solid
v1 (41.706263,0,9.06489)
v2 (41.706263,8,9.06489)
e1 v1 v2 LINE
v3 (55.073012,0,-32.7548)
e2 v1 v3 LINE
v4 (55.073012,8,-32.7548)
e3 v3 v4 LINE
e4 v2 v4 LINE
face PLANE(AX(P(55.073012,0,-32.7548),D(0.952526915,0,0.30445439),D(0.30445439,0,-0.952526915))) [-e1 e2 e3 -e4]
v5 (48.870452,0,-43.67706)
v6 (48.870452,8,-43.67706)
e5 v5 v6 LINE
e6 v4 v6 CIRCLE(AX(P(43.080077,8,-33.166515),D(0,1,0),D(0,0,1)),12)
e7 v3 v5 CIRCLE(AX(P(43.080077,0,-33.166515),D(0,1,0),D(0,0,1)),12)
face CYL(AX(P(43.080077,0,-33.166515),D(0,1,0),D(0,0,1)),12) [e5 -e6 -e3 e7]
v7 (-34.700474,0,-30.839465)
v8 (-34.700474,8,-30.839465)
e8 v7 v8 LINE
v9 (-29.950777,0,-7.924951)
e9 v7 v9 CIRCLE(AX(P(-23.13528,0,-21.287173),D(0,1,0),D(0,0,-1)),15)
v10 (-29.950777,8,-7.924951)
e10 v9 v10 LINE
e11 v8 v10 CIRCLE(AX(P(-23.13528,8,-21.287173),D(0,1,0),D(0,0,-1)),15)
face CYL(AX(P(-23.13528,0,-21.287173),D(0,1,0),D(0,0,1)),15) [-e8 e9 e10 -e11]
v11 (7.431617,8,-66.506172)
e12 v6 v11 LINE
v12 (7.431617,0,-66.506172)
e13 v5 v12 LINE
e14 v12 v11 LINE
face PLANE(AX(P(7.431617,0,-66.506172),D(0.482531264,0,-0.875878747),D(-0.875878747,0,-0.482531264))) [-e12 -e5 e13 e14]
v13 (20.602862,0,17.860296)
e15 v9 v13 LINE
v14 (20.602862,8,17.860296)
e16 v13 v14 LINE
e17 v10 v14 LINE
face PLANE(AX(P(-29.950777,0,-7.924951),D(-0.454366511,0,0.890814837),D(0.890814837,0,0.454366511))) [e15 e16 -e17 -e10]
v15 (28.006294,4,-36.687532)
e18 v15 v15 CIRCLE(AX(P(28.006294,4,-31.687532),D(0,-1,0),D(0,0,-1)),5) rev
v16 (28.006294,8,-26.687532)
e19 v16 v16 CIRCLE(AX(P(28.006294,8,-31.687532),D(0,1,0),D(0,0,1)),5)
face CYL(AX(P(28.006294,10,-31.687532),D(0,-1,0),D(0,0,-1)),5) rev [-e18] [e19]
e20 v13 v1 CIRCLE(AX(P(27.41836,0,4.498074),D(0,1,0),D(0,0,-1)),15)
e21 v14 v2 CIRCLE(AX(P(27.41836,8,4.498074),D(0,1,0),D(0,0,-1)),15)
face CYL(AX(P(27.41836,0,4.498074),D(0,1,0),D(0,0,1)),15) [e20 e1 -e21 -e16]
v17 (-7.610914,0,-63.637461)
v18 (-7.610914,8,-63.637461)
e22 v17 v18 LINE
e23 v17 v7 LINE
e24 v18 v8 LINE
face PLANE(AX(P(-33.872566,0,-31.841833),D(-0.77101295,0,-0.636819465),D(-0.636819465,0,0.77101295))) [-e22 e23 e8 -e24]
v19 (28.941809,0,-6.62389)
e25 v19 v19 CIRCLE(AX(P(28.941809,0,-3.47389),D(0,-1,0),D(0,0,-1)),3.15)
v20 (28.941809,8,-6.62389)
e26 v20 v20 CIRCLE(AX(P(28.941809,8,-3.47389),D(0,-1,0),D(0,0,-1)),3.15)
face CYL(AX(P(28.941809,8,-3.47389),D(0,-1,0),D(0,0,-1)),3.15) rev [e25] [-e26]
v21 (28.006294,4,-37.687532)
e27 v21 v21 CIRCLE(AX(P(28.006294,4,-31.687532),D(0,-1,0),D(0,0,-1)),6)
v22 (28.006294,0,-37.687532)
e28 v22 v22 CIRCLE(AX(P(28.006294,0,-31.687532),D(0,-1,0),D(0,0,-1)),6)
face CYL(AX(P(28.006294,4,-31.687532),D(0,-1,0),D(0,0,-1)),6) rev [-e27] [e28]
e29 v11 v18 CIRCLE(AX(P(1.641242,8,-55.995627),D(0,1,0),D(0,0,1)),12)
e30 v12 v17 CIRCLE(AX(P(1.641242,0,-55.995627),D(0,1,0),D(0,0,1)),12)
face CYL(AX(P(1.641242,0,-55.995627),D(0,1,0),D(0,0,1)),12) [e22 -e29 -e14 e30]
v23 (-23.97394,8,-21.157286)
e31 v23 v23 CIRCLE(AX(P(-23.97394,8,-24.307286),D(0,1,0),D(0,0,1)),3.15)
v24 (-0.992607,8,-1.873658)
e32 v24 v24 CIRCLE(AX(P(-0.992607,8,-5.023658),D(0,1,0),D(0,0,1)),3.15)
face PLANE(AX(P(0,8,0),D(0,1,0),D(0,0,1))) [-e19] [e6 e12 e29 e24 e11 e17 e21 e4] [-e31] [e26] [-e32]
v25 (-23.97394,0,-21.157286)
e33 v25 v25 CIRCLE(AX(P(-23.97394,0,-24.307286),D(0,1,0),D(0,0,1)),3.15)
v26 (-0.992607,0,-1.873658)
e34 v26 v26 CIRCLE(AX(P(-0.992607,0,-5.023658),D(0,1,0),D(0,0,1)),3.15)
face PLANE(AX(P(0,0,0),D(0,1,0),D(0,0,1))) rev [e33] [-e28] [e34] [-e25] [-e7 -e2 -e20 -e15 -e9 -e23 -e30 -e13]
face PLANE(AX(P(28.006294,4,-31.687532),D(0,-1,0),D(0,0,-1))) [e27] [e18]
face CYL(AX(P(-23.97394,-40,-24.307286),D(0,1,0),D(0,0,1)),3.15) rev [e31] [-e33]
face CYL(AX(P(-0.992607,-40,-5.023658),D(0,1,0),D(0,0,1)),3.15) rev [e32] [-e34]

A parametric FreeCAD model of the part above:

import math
import FreeCAD as App
import Part
import Sketcher

V = App.Vector
Q = App.Units.Quantity


def add_polygon(sketch, points):
    """Adds a closed chain of lines whose ends are joined by coincident constraints."""
    first, n = sketch.GeometryCount, len(points)
    for a, b in zip(points, points[1:] + points[:1]):
        sketch.addGeometry(Part.LineSegment(App.Vector(*a, 0), App.Vector(*b, 0)), False)
    for i in range(n):
        sketch.addConstraint(Sketcher.Constraint("Coincident", first + i, 2, first + (i + 1) % n, 1))

doc = App.newDocument("Part")
body = doc.addObject("PartDesign::Body", "Body")

sketch1 = body.newObject("Sketcher::SketchObject", "Sketch")
sketch1.AttachmentSupport = (doc.getObject("XZ_Plane"), [""])
sketch1.MapMode = "FlatFace"
add_polygon(sketch1, [(-36.064195, -45.05514), (-36.064195, -30.198211), (-26.793691, 0.934399), (5.024212, 12.575444), (57.860021, -4.654046), (63.192702, -49.978778), (25.92829, -75.028423), (-24.456216, -60.508201)])
sketch1.addConstraint([
    Sketcher.Constraint("Vertical", 0),
    Sketcher.Constraint("DistanceY", 0, 1, 0, 2, Q("14.856929 mm")),
    Sketcher.Constraint("DistanceY", -1, 1, 1, 2, Q("0.934399 mm")),
    Sketcher.Constraint("DistanceX", -1, 1, 4, 2, Q("63.192702 mm")),
    Sketcher.Constraint("DistanceY", 6, 2, -1, 1, Q("60.508201 mm")),
    Sketcher.Constraint("Distance", 1, Q("32.48356 mm")),
    Sketcher.Constraint("Distance", 4, Q("45.637362 mm")),
    Sketcher.Constraint("Distance", 6, Q("52.435058 mm")),
    Sketcher.Constraint("Distance", 7, Q("19.327241 mm")),
    Sketcher.Constraint("DistanceY", 0, 2, -1, 1, Q("30.198211 mm")),
    Sketcher.Constraint("DistanceX", 1, 2, -1, 1, Q("26.793691 mm")),
    Sketcher.Constraint("DistanceX", -1, 1, 3, 2, Q("57.860021 mm")),
    Sketcher.Constraint("DistanceX", -1, 1, 5, 2, Q("25.92829 mm")),
    Sketcher.Constraint("DistanceX", 2, 2, 3, 2, Q("52.835809 mm")),
    Sketcher.Constraint("DistanceY", 3, 2, 2, 2, Q("17.22949 mm")),
    Sketcher.Constraint("Distance", 2, Q("33.880567 mm")),
])
pad1 = body.newObject("PartDesign::Pad", "Pad")
pad1.Profile = sketch1
pad1.Length = 8
pad1.Reversed = True

sketch2 = body.newObject("Sketcher::SketchObject", "Sketch001")
sketch2.AttachmentSupport = (doc.getObject("XZ_Plane"), [""])
sketch2.MapMode = "FlatFace"
sketch2.AttachmentOffset = App.Placement(V(0, 0, -8), App.Rotation())
add_polygon(sketch2, [(-23.900801, -101.032848), (-57.901406, -20.736967), (-18.158957, 32.533825), (87.924214, 9.961237), (85.311975, -49.315634)])
add_polygon(sketch2, [(-5.371906, 12.019068), (-40.820624, -23.42965), (-8.197554, -82.927487), (73.057765, -41.083606), (42.940552, 17.400063)])
sketch2.addConstraint([
    Sketcher.Constraint("Perpendicular", 7, 8),
    Sketcher.Constraint("Angle", 5, Q("-135 deg")),
    Sketcher.Constraint("Distance", 9, Q("48.6112 mm")),
    Sketcher.Constraint("DistanceX", 4, 2, -1, 1, Q("23.900801 mm")),
    Sketcher.Constraint("DistanceY", 4, 2, 5, 2, Q("77.603199 mm")),
    Sketcher.Constraint("DistanceX", 5, 2, 3, 2, Q("126.132599 mm")),
    Sketcher.Constraint("DistanceX", 0, 2, 9, 2, Q("52.5295 mm")),
    Sketcher.Constraint("Distance", 6, Q("67.854678 mm")),
    Sketcher.Constraint("Distance", 8, Q("65.782871 mm")),
    Sketcher.Constraint("DistanceY", 4, 2, -1, 1, Q("101.032848 mm")),
    Sketcher.Constraint("DistanceX", 0, 2, 1, 2, Q("39.742449 mm")),
    Sketcher.Constraint("DistanceX", 1, 2, 2, 2, Q("106.083171 mm")),
    Sketcher.Constraint("DistanceY", 2, 2, 1, 2, Q("22.572588 mm")),
    Sketcher.Constraint("DistanceX", 3, 2, 2, 2, Q("2.612239 mm")),
    Sketcher.Constraint("DistanceY", 3, 2, 2, 2, Q("59.276871 mm")),
    Sketcher.Constraint("DistanceY", 4, 2, 0, 2, Q("80.295881 mm")),
    Sketcher.Constraint("DistanceY", 4, 2, 6, 2, Q("18.105361 mm")),
    Sketcher.Constraint("DistanceX", 7, 2, 3, 2, Q("12.25421 mm")),
    Sketcher.Constraint("DistanceY", 3, 2, 7, 2, Q("8.232028 mm")),
    Sketcher.Constraint("Distance", 0, Q("87.197876 mm")),
])
pocket1 = body.newObject("PartDesign::Pocket", "Pocket")
pocket1.Profile = sketch2
pocket1.Length = 18.5
pocket1.Reversed = True

sketch3 = body.newObject("Sketcher::SketchObject", "Sketch002")
sketch3.AttachmentSupport = (doc.getObject("XZ_Plane"), [""])
sketch3.MapMode = "FlatFace"
sketch3.AttachmentOffset = App.Placement(V(0, 0, -8), App.Rotation())
add_polygon(sketch3, [(-8.197554, -82.927487), (-40.820624, -23.42965), (-5.371906, 12.019068), (42.940552, 17.400063), (73.057765, -41.083606)])
add_polygon(sketch3, [(-9.746923, -64.747246), (7.419637, -62.005547), (56.025504, -35.943619), (46.19748, -11.841772), (0, 4.674812), (-32.401642, -23.42965)])
sketch3.addConstraint([
    Sketcher.Constraint("PointOnObject", 8, 2, -2),
    Sketcher.Constraint("Distance", 2, Q("48.6112 mm")),
    Sketcher.Constraint("DistanceY", 10, 2, 5, 2, Q("2.741699 mm")),
    Sketcher.Constraint("DistanceX", 0, 2, 10, 2, Q("31.073701 mm")),
    Sketcher.Constraint("Distance", 0, Q("67.854678 mm")),
    Sketcher.Constraint("Distance", 3, Q("65.782871 mm")),
    Sketcher.Constraint("Distance", 5, Q("17.384122 mm")),
    Sketcher.Constraint("Distance", 7, Q("26.028621 mm")),
    Sketcher.Constraint("Distance", 9, Q("42.892041 mm")),
    Sketcher.Constraint("Distance", 10, Q("47.120909 mm")),
    Sketcher.Constraint("DistanceY", 0, 2, -1, 1, Q("23.42965 mm")),
    Sketcher.Constraint("DistanceY", 6, 2, -1, 1, Q("35.943619 mm")),
    Sketcher.Constraint("DistanceX", -1, 1, 7, 2, Q("46.19748 mm")),
    Sketcher.Constraint("DistanceY", 7, 2, -1, 1, Q("11.841772 mm")),
    Sketcher.Constraint("DistanceY", 9, 2, -1, 1, Q("23.42965 mm")),
    Sketcher.Constraint("DistanceX", 1, 2, 2, 2, Q("48.312459 mm")),
    Sketcher.Constraint("DistanceY", 3, 2, 2, 2, Q("58.483669 mm")),
    Sketcher.Constraint("DistanceX", 0, 2, 3, 2, Q("113.878389 mm")),
    Sketcher.Constraint("DistanceX", 0, 2, 4, 2, Q("32.62307 mm")),
    Sketcher.Constraint("DistanceY", 4, 2, 3, 2, Q("41.843881 mm")),
    Sketcher.Constraint("DistanceY", 4, 2, 5, 2, Q("20.92194 mm")),
    Sketcher.Constraint("DistanceX", 6, 2, 3, 2, Q("17.032261 mm")),
])
pad2 = body.newObject("PartDesign::Pad", "Pad001")
pad2.Profile = sketch3
pad2.Length = 8

sketch4 = body.newObject("Sketcher::SketchObject", "Sketch003")
sketch4.AttachmentSupport = (doc.getObject("XZ_Plane"), [""])
sketch4.MapMode = "FlatFace"
sketch4.addGeometry(Part.Circle(V(28.941809, -3.47389, 0), V(0, 0, 1), 3.15), False)
sketch4.addConstraint([
    Sketcher.Constraint("Diameter", 0, Q("6.3 mm")),
    Sketcher.Constraint("DistanceX", -1, 1, 0, 3, Q("28.941809 mm")),
    Sketcher.Constraint("DistanceY", 0, 3, -1, 1, Q("3.47389 mm")),
])
pocket2 = body.newObject("PartDesign::Pocket", "Pocket001")
pocket2.Profile = sketch4
pocket2.Length = 8

sketch5 = body.newObject("Sketcher::SketchObject", "Sketch004")
sketch5.AttachmentSupport = (doc.getObject("XZ_Plane"), [""])
sketch5.MapMode = "FlatFace"
sketch5.AttachmentOffset = App.Placement(V(0, 0, -8), App.Rotation())
add_polygon(sketch5, [(-18.337971, -89.979258), (-51.027907, -26.499697), (-23.676019, 9.814381), (41.198194, 31.646718), (85.862243, -8.329362), (70.6189, -64.730011)])
sketch5.addGeometry(Part.LineSegment(V(-33.872566, -31.841833, 0), V(-7.610914, -63.637461, 0)), False)
sketch5.addGeometry(Part.ArcOfCircle(Part.Circle(V(1.641242, -55.995627, 0), V(0, 0, 1), 12), math.radians(-140.444938), math.radians(-61.149146)), False)
sketch5.addGeometry(Part.LineSegment(V(7.431617, -66.506172, 0), V(48.870452, -43.67706, 0)), False)
sketch5.addGeometry(Part.ArcOfCircle(Part.Circle(V(43.080077, -33.166515, 0), V(0, 0, 1), 12), math.radians(-61.149146), math.radians(1.966183)), False)
sketch5.addGeometry(Part.LineSegment(V(55.073012, -32.7548, 0), V(41.706263, 9.06489, 0)), False)
sketch5.addGeometry(Part.ArcOfCircle(Part.Circle(V(27.41836, 4.498074, 0), V(0, 0, 1), 15), math.radians(17.725342), math.radians(117.024182)), False)
sketch5.addGeometry(Part.LineSegment(V(20.602862, 17.860296, 0), V(-29.950777, -7.924951, 0)), False)
sketch5.addGeometry(Part.ArcOfCircle(Part.Circle(V(-23.13528, -21.287173, 0), V(0, 0, 1), 15), math.radians(117.024182), math.radians(219.555062)), False)
sketch5.addGeometry(Part.LineSegment(V(-34.700474, -30.839465, 0), V(-33.872566, -31.841833, 0)), False)
sketch5.addConstraint([
    Sketcher.Constraint("Tangent", 6, 2, 7, 1),
    Sketcher.Constraint("Tangent", 7, 2, 8, 1),
    Sketcher.Constraint("Tangent", 8, 2, 9, 1),
    Sketcher.Constraint("Coincident", 9, 2, 10, 1),
    Sketcher.Constraint("Tangent", 10, 2, 11, 1),
    Sketcher.Constraint("Tangent", 11, 2, 12, 1),
    Sketcher.Constraint("Tangent", 12, 2, 13, 1),
    Sketcher.Constraint("Tangent", 13, 2, 14, 1),
    Sketcher.Constraint("Coincident", 14, 2, 6, 1),
    Sketcher.Constraint("Equal", 7, 9),
    Sketcher.Constraint("Equal", 11, 13),
    Sketcher.Constraint("Parallel", 6, 14),
    Sketcher.Constraint("Radius", 7, Q("12 mm")),
    Sketcher.Constraint("Radius", 11, Q("15 mm")),
    Sketcher.Constraint("DistanceX", 7, 3, 3, 2, Q("84.221002 mm")),
    Sketcher.Constraint("DistanceY", 7, 2, 13, 3, Q("45.218999 mm")),
    Sketcher.Constraint("DistanceX", -1, 1, 4, 2, Q("70.6189 mm")),
    Sketcher.Constraint("DistanceY", 9, 2, -1, 1, Q("32.7548 mm")),
    Sketcher.Constraint("DistanceY", 7, 3, 11, 3, Q("60.493701 mm")),
    Sketcher.Constraint("DistanceY", 8, 2, 3, 2, Q("35.347699 mm")),
    Sketcher.Constraint("DistanceX", 11, 2, 10, 2, Q("21.103401 mm")),
    Sketcher.Constraint("Distance", 1, Q("45.462491 mm")),
    Sketcher.Constraint("Distance", 3, Q("59.94134 mm")),
    Sketcher.Constraint("Distance", 6, Q("41.238772 mm")),
    Sketcher.Constraint("DistanceX", -1, 1, 7, 3, Q("1.641242 mm")),
    Sketcher.Constraint("DistanceX", -1, 1, 11, 3, Q("27.41836 mm")),
    Sketcher.Constraint("DistanceX", 13, 3, -1, 1, Q("23.13528 mm")),
    Sketcher.Constraint("DistanceX", 1, 2, -1, 1, Q("23.676019 mm")),
    Sketcher.Constraint("DistanceY", -1, 1, 1, 2, Q("9.814381 mm")),
    Sketcher.Constraint("DistanceY", 3, 2, -1, 1, Q("8.329362 mm")),
    Sketcher.Constraint("DistanceY", 4, 2, -1, 1, Q("64.730011 mm")),
    Sketcher.Constraint("DistanceX", 5, 2, -1, 1, Q("18.337971 mm")),
    Sketcher.Constraint("DistanceY", 5, 2, -1, 1, Q("89.979258 mm")),
    Sketcher.Constraint("DistanceY", 6, 2, -1, 1, Q("63.637461 mm")),
    Sketcher.Constraint("DistanceX", 0, 2, 7, 3, Q("52.669149 mm")),
    Sketcher.Constraint("DistanceY", 13, 3, 2, 2, Q("52.933891 mm")),
])
pocket3 = body.newObject("PartDesign::Pocket", "Pocket002")
pocket3.Profile = sketch5
pocket3.Length = 8
pocket3.Reversed = True

sketch6 = body.newObject("Sketcher::SketchObject", "Sketch005")
sketch6.AttachmentSupport = (doc.getObject("XZ_Plane"), [""])
sketch6.MapMode = "FlatFace"
sketch6.AttachmentOffset = App.Placement(V(0, 0, -8), App.Rotation())
sketch6.addGeometry([
    Part.LineSegment(V(-23.799416, -10.878604, 0), V(-34.700474, -30.839465, 0)),
    Part.ArcOfCircle(Part.Circle(V(-23.13528, -21.287173, 0), V(0, 0, 1), 15), math.radians(117.024182), math.radians(219.555062)),
    Part.LineSegment(V(-29.950777, -7.924951, 0), V(20.602862, 17.860296, 0)),
    Part.ArcOfCircle(Part.Circle(V(27.41836, 4.498074, 0), V(0, 0, 1), 15), math.radians(17.725342), math.radians(117.024182)),
    Part.LineSegment(V(41.706263, 9.06489, 0), V(16.273254, 10.775107, 0)),
    Part.LineSegment(V(16.273254, 10.775107, 0), V(-23.799416, -10.878604, 0)),
], False)
sketch6.addConstraint([
    Sketcher.Constraint("Coincident", 0, 2, 1, 2),
    Sketcher.Constraint("Tangent", 1, 1, 2, 1),
    Sketcher.Constraint("Tangent", 2, 2, 3, 2),
    Sketcher.Constraint("Coincident", 3, 1, 4, 1),
    Sketcher.Constraint("Coincident", 4, 2, 5, 1),
    Sketcher.Constraint("Coincident", 5, 2, 0, 1),
    Sketcher.Constraint("Equal", 1, 3),
    Sketcher.Constraint("Radius", 1, Q("15 mm")),
    Sketcher.Constraint("Distance", 5, Q("45.548899 mm")),
    Sketcher.Constraint("DistanceX", 2, 2, 3, 1, Q("21.103401 mm")),
    Sketcher.Constraint("DistanceY", 5, 2, 2, 2, Q("28.738901 mm")),
    Sketcher.Constraint("Distance", 0, Q("22.743549 mm")),
    Sketcher.Constraint("DistanceX", 1, 3, -1, 1, Q("23.13528 mm")),
    Sketcher.Constraint("DistanceX", -1, 1, 3, 3, Q("27.41836 mm")),
    Sketcher.Constraint("DistanceY", 1, 1, -1, 1, Q("7.924951 mm")),
    Sketcher.Constraint("DistanceX", -1, 1, 2, 2, Q("20.602862 mm")),
    Sketcher.Constraint("DistanceY", 0, 2, 1, 3, Q("9.552292 mm")),
    Sketcher.Constraint("DistanceY", 4, 2, 2, 2, Q("7.085189 mm")),
])
pad3 = body.newObject("PartDesign::Pad", "Pad002")
pad3.Profile = sketch6
pad3.Length = 8

sketch7 = body.newObject("Sketcher::SketchObject", "Sketch006")
sketch7.AttachmentSupport = (doc.getObject("XZ_Plane"), [""])
sketch7.MapMode = "FlatFace"
sketch7.addGeometry(Part.Circle(V(28.006294, -31.687532, 0), V(0, 0, 1), 5), False)
sketch7.addConstraint([
    Sketcher.Constraint("Diameter", 0, Q("10 mm")),
    Sketcher.Constraint("DistanceY", 0, 3, -1, 1, Q("31.687532 mm")),
    Sketcher.Constraint("DistanceX", -1, 1, 0, 3, Q("28.006294 mm")),
])
pocket4 = body.newObject("PartDesign::Pocket", "Pocket003")
pocket4.Profile = sketch7
pocket4.Length = 10

sketch8 = body.newObject("Sketcher::SketchObject", "Sketch007")
sketch8.AttachmentSupport = (doc.getObject("XZ_Plane"), [""])
sketch8.MapMode = "FlatFace"
sketch8.addGeometry(Part.Circle(V(28.006294, -31.687532, 0), V(0, 0, 1), 6), False)
sketch8.addConstraint([
    Sketcher.Constraint("Diameter", 0, Q("12 mm")),
    Sketcher.Constraint("DistanceY", 0, 3, -1, 1, Q("31.687532 mm")),
    Sketcher.Constraint("DistanceX", -1, 1, 0, 3, Q("28.006294 mm")),
])
pocket5 = body.newObject("PartDesign::Pocket", "Pocket004")
pocket5.Profile = sketch8
pocket5.Length = 4

sketch9 = body.newObject("Sketcher::SketchObject", "Sketch008")
sketch9.AttachmentSupport = (doc.getObject("XZ_Plane"), [""])
sketch9.MapMode = "FlatFace"
sketch9.AttachmentOffset = App.Placement(V(0, 0, -8), App.Rotation())
sketch9.addGeometry([
    Part.Circle(V(-0.992607, -5.023658, 0), V(0, 0, 1), 3.15),
    Part.Circle(V(-23.97394, -24.307286, 0), V(0, 0, 1), 3.15),
], False)
sketch9.addConstraint([
    Sketcher.Constraint("Equal", 0, 1),
    Sketcher.Constraint("Diameter", 0, Q("6.3 mm")),
    Sketcher.Constraint("DistanceY", 0, 3, -1, 1, Q("5.023658 mm")),
    Sketcher.Constraint("DistanceX", 1, 3, -1, 1, Q("23.97394 mm")),
    Sketcher.Constraint("DistanceY", 1, 3, 0, 3, Q("19.283628 mm")),
    Sketcher.Constraint("DistanceX", 0, 3, -1, 1, Q("0.992607 mm")),
])
pocket6 = body.newObject("PartDesign::Pocket", "Pocket005")
pocket6.Profile = sketch9
pocket6.Length = 48
pocket6.Reversed = True

doc.recompute()
